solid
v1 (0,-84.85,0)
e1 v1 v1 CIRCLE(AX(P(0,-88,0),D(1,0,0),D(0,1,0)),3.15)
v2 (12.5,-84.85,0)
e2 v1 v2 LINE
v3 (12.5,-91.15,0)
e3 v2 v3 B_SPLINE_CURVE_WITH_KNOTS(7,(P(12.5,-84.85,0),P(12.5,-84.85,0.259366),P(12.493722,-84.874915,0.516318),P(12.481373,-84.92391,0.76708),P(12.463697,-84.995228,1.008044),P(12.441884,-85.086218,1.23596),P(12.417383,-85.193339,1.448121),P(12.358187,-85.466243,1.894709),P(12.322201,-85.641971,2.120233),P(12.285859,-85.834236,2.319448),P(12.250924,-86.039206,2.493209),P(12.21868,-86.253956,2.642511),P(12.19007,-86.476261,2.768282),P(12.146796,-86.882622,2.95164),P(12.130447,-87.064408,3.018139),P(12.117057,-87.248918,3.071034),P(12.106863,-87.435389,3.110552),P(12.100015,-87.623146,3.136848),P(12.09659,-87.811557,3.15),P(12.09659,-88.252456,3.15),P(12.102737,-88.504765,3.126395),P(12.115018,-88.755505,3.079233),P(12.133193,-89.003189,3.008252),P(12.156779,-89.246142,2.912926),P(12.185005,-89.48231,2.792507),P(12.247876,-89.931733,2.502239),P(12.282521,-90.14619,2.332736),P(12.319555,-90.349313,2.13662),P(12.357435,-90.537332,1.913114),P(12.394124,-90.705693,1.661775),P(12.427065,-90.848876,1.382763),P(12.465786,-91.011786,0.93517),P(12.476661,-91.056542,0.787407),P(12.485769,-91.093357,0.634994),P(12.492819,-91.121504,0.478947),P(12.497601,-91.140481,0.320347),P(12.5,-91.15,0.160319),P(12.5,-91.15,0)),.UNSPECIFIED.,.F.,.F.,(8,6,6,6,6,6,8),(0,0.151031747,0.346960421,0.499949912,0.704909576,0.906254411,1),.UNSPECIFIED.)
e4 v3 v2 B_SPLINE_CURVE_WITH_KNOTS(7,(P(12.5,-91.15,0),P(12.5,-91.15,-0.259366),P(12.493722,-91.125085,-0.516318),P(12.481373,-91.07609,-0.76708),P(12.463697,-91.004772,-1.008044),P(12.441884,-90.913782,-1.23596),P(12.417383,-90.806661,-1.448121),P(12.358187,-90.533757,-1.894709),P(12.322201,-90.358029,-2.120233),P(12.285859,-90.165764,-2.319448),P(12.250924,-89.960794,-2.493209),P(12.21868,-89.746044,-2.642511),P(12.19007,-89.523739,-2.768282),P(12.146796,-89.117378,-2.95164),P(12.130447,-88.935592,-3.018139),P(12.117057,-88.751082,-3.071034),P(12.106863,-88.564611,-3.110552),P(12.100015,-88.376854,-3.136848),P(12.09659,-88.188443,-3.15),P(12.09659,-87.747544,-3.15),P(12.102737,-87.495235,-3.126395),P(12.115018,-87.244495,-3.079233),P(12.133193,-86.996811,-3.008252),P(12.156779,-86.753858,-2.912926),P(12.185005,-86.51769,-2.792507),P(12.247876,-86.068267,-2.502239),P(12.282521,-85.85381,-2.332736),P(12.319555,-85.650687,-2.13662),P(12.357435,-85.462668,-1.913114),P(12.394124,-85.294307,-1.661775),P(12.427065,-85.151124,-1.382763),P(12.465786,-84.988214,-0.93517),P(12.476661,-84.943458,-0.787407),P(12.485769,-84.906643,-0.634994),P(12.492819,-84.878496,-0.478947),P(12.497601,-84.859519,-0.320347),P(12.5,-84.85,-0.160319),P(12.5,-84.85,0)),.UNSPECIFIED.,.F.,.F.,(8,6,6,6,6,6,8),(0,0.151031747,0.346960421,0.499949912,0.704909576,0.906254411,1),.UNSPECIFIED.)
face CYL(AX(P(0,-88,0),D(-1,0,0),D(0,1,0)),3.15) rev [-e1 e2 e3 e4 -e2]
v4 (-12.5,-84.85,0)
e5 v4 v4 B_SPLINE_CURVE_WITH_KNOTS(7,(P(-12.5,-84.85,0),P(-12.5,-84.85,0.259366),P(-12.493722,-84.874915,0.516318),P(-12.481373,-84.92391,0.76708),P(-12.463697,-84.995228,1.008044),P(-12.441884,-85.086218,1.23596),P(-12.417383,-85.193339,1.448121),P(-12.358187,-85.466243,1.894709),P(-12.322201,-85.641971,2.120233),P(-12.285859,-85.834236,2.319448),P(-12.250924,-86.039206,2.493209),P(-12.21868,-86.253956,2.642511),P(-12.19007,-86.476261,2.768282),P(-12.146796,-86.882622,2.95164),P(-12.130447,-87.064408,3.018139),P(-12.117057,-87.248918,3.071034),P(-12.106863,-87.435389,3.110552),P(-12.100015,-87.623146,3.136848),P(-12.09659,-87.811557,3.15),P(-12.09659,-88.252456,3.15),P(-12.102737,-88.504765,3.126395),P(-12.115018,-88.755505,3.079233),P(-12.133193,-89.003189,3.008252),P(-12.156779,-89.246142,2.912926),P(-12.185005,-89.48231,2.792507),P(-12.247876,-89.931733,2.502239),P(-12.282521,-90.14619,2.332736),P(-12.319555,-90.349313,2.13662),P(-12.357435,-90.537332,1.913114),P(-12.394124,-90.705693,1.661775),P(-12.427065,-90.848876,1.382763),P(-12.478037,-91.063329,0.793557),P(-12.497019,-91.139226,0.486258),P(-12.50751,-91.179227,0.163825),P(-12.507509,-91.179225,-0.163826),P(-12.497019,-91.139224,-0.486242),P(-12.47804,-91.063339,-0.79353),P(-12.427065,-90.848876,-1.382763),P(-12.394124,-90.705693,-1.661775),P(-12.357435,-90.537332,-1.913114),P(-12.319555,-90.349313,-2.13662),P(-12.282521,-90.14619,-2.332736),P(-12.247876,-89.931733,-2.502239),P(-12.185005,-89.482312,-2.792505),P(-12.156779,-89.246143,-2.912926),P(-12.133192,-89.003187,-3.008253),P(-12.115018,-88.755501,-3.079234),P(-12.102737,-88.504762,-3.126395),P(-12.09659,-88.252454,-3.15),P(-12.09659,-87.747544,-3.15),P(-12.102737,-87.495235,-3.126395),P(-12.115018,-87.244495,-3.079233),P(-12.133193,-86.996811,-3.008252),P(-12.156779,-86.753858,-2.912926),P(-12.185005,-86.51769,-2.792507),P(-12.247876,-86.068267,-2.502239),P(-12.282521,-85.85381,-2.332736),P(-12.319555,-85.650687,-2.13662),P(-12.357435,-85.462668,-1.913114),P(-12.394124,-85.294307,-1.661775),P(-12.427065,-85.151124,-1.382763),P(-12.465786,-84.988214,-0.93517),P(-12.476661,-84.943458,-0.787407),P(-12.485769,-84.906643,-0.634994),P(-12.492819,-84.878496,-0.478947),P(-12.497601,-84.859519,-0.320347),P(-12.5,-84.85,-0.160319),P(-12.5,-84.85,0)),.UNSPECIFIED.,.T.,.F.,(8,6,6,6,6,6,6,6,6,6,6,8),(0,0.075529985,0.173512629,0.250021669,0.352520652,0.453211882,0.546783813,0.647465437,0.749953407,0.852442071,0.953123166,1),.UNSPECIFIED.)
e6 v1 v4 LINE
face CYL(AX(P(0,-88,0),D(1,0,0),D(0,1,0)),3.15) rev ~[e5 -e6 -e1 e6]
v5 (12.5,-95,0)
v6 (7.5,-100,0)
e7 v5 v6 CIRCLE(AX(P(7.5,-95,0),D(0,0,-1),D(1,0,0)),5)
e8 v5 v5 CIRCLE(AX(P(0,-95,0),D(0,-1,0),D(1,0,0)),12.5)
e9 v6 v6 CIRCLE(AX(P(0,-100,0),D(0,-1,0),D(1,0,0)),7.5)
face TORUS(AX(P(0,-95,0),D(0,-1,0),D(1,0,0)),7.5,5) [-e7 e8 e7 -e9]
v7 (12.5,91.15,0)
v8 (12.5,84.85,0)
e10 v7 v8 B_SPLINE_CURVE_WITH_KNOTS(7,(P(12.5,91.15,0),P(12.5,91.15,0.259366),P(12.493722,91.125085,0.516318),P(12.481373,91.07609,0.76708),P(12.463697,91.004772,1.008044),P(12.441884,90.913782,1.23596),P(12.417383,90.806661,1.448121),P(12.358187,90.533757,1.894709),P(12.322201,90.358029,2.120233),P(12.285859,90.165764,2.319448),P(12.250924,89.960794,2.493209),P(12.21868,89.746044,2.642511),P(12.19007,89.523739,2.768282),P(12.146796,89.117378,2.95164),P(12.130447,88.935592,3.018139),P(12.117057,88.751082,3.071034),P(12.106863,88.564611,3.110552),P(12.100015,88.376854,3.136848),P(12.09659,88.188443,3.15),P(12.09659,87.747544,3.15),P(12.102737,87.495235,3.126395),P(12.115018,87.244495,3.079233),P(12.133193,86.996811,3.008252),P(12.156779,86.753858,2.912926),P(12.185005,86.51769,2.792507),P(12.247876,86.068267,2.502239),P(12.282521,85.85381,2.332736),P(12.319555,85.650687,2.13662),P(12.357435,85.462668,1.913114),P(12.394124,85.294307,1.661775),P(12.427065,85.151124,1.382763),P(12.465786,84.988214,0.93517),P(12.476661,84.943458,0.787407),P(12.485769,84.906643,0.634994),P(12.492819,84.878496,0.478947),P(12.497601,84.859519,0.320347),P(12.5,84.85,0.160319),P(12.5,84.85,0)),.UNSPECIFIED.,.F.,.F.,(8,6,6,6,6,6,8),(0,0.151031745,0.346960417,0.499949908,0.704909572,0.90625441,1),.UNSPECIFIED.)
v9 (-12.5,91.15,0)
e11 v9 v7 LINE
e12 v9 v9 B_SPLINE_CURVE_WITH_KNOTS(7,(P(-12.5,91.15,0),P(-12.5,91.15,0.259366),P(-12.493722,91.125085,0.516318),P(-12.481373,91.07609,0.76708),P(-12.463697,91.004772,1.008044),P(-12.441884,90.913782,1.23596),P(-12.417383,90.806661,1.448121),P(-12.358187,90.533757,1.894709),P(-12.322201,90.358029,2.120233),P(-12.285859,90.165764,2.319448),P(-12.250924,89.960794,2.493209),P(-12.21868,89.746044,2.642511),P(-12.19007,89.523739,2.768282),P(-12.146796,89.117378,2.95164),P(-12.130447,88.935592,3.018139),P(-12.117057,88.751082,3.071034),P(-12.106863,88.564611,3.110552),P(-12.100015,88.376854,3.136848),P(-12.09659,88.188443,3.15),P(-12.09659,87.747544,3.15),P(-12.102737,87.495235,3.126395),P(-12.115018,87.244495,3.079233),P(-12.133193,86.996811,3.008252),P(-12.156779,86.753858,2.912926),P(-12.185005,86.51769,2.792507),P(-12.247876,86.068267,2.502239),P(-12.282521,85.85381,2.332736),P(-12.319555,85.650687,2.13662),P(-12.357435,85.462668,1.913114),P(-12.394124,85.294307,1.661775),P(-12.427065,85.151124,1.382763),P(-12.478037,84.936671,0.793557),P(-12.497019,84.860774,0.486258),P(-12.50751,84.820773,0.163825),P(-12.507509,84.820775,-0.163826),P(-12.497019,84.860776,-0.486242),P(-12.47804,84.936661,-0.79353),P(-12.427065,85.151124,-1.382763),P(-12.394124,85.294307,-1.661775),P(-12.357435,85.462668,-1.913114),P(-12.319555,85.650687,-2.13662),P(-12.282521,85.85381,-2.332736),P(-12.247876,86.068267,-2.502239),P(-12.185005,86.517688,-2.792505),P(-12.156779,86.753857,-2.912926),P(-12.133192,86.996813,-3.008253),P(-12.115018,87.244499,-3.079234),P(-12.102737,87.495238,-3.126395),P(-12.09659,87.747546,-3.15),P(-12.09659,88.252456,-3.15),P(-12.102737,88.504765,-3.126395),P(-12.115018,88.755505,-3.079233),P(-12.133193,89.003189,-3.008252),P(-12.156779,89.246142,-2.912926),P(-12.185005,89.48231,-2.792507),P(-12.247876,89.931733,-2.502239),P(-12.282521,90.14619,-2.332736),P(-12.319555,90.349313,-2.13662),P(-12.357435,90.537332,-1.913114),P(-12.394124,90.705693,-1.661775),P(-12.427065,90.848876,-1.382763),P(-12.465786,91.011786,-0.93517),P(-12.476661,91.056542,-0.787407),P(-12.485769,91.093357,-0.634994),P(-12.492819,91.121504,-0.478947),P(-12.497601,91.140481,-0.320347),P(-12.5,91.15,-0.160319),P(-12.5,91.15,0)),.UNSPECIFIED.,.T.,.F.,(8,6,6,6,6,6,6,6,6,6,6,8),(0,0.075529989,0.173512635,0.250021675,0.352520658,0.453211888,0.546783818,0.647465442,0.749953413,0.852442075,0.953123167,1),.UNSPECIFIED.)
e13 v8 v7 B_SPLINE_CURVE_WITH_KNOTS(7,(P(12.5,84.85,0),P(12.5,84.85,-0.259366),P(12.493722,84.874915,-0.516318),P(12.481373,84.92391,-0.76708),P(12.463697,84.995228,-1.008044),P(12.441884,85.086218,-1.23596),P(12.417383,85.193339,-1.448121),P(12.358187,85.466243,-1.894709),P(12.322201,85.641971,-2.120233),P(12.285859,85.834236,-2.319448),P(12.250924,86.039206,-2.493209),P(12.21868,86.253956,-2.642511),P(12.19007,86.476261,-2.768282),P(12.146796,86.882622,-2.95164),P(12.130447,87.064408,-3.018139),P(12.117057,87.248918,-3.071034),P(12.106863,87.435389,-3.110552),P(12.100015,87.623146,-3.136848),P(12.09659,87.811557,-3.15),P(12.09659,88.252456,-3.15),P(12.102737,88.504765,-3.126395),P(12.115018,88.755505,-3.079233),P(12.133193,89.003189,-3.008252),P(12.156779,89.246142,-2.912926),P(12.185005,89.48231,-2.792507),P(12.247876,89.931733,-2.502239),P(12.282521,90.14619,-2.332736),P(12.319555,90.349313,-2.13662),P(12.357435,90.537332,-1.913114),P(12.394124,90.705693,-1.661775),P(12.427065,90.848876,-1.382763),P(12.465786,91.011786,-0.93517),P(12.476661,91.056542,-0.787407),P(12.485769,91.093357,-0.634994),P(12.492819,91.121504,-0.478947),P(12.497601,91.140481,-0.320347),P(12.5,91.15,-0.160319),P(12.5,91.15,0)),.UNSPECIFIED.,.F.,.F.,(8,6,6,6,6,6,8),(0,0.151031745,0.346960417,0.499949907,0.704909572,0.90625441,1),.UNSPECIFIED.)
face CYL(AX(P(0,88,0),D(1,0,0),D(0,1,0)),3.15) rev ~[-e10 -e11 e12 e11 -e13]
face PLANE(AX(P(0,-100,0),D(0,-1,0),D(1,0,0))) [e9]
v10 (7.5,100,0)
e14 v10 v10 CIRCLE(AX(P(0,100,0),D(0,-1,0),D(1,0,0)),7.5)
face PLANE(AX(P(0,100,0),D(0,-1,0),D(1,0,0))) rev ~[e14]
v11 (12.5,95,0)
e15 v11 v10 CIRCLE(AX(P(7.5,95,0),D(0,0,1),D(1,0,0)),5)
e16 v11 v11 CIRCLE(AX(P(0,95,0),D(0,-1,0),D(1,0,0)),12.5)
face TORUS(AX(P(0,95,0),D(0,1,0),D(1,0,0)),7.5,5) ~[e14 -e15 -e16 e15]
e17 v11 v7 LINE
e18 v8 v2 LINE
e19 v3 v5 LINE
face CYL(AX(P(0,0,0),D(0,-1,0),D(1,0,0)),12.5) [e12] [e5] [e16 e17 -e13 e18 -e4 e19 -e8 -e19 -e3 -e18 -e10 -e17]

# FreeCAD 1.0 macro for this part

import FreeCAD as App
import Part
import Sketcher

V = App.Vector


def edges_at(feature, points):
    """Names of the edges that pass closest to the given points."""
    edges = feature.Shape.Edges
    near = lambda p: min(range(len(edges)), key=lambda i: edges[i].distToShape(Part.Vertex(*p))[0])
    return sorted({f"Edge{near(p) + 1}" for p in points})

doc = App.newDocument("Part")
body = doc.addObject("PartDesign::Body", "Body")

sketch1 = body.newObject("Sketcher::SketchObject", "Sketch")
sketch1.AttachmentSupport = (doc.getObject("XZ_Plane"), [""])
sketch1.MapMode = "FlatFace"
sketch1.addGeometry(Part.Circle(V(0, 0, 0), V(0, 0, 1), 12), False)
sketch1.addConstraint([
    Sketcher.Constraint("Coincident", 0, 3, -1, 1),
    Sketcher.Constraint("Diameter", 0, 25.0),
])
pad1 = body.newObject("PartDesign::Pad", "Pad")
pad1.Profile = sketch1
pad1.Length = 200
pad1.Midplane = True

sketch2 = body.newObject("Sketcher::SketchObject", "Sketch001")
sketch2.AttachmentSupport = (doc.getObject("YZ_Plane"), [""])
sketch2.MapMode = "FlatFace"
sketch2.addGeometry([
    Part.Circle(V(-88, 0, 0), V(0, 0, 1), 3.1),
    Part.Circle(V(88, 0, 0), V(0, 0, 1), 3.1),
], False)
sketch2.addConstraint([
    Sketcher.Constraint("Equal", 0, 1),
    Sketcher.Constraint("Symmetric", 0, 3, 1, 3, -1, 1),
    Sketcher.Constraint("PointOnObject", 0, 3, -1),
    Sketcher.Constraint("Diameter", 0, 6.3),
    Sketcher.Constraint("DistanceX", 0, 3, -1, 1, 88.0),
])
pocket1 = body.newObject("PartDesign::Pocket", "Pocket")
pocket1.Profile = sketch2
pocket1.Length = 400
pocket1.Midplane = True
doc.recompute()

fillet = body.newObject("PartDesign::Fillet", "Fillet")
fillet.Base = (pocket1, edges_at(pocket1, [(-12.5, -100, 0), (-12.5, 100, 0)]))
fillet.Radius = 5

doc.recompute()
